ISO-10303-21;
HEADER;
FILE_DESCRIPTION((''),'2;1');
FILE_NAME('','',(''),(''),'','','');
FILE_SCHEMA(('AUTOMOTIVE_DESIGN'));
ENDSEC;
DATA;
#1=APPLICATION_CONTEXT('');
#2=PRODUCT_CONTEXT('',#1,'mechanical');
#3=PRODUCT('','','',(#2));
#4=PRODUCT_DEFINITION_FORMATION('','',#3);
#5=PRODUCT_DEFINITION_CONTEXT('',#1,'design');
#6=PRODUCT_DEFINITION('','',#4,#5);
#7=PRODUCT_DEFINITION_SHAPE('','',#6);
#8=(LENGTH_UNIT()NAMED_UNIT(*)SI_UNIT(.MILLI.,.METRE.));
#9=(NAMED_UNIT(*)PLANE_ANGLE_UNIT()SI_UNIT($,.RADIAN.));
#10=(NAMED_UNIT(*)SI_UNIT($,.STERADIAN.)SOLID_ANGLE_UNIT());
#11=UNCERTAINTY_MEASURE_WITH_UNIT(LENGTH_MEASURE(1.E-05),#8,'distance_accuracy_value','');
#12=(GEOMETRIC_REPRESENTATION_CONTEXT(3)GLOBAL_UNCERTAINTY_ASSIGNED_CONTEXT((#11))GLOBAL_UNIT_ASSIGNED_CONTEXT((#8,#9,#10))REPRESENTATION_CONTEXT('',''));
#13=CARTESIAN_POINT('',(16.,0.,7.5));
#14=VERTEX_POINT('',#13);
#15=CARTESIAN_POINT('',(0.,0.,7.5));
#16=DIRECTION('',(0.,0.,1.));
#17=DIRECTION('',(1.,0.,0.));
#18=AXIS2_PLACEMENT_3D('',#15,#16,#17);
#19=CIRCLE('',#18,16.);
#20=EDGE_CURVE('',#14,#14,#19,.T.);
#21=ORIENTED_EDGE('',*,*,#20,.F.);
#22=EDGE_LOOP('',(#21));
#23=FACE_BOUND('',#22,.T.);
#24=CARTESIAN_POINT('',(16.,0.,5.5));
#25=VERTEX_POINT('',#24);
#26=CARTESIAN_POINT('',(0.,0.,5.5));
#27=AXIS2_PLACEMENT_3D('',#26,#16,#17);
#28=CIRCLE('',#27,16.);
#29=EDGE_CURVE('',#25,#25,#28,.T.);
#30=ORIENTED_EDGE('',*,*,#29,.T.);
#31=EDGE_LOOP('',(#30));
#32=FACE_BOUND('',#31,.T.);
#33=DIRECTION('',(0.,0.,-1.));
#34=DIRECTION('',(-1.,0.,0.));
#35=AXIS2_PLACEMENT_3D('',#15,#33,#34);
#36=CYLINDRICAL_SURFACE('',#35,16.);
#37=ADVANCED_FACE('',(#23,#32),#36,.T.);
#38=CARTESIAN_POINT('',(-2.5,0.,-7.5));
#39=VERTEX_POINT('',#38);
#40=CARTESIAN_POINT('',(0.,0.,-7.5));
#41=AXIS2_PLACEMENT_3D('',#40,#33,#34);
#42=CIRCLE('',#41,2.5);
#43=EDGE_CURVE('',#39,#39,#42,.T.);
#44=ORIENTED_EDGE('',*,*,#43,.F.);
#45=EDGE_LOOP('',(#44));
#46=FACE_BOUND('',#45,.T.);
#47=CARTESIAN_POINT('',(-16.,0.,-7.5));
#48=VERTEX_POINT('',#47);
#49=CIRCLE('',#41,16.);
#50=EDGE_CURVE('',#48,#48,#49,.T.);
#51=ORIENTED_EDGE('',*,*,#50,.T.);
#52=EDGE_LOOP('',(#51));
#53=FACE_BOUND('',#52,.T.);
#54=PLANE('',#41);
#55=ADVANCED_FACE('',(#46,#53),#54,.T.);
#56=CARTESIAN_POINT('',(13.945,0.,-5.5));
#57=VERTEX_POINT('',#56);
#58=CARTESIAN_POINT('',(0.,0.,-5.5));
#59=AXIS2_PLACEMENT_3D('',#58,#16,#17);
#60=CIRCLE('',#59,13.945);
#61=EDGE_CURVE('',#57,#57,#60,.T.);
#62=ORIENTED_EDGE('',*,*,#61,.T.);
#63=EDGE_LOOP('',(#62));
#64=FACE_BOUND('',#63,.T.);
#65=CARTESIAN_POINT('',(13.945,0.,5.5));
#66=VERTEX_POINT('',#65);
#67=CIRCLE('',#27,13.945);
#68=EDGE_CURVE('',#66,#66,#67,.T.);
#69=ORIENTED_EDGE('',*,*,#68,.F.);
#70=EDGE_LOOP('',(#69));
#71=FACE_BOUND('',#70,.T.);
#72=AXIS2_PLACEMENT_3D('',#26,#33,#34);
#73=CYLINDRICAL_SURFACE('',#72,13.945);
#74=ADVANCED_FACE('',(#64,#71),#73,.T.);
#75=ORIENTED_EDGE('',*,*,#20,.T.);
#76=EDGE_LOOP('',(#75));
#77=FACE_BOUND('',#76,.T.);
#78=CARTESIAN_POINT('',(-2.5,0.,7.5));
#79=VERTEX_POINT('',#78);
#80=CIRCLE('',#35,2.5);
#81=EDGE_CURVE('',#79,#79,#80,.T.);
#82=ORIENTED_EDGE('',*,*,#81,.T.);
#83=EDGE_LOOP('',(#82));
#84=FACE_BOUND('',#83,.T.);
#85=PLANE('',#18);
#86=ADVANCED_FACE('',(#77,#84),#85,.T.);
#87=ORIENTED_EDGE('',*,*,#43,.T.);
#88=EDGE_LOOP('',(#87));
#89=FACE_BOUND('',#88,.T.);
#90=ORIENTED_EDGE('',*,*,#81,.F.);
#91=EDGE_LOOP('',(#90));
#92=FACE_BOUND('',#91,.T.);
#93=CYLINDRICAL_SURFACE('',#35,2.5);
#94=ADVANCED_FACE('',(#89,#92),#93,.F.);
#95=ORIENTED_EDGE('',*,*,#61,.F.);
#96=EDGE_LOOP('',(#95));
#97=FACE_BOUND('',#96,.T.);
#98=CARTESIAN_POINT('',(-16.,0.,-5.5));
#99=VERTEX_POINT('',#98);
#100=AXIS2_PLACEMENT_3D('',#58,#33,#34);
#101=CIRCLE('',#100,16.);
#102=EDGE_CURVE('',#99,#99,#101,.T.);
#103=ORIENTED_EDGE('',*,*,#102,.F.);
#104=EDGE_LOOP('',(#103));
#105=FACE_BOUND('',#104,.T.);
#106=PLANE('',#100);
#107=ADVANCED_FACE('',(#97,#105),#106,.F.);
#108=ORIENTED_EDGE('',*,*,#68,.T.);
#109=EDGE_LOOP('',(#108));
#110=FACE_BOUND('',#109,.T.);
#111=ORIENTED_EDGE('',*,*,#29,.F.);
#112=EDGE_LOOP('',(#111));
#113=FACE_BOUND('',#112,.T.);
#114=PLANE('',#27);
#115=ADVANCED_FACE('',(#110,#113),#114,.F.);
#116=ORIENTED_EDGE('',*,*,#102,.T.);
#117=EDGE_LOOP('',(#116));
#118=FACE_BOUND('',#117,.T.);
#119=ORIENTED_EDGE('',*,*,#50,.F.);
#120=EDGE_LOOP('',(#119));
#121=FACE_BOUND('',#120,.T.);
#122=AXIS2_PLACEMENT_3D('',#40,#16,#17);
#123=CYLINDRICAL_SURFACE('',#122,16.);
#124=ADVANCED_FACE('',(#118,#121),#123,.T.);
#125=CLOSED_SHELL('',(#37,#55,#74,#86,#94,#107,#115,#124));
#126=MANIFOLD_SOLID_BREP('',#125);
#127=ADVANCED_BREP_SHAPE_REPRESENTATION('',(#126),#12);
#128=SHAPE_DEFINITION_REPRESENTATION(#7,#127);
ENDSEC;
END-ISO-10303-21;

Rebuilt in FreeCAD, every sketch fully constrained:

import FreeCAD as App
import Part
import Sketcher
Q = App.Units.Quantity

doc = App.newDocument("Part")
body = doc.addObject("PartDesign::Body", "Body")

# Sketch on XY plane
sketch1 = body.newObject("Sketcher::SketchObject", "Sketch")
sketch1.AttachmentSupport = (doc.getObject("XY_Plane"), [""])
sketch1.MapMode = "FlatFace"
sketch1.addGeometry(Part.Circle(App.Vector(0, 0, 0), App.Vector(0, 0, 1), 14), False)
sketch1.addConstraint([
    Sketcher.Constraint("Coincident", 0, 3, -1, 1),
    Sketcher.Constraint("Diameter", 0, Q("27.89 mm")),
])
pad1 = body.newObject("PartDesign::Pad", "Pad")
pad1.Profile = sketch1
pad1.Length = 11
pad1.Midplane = True

# Sketch on XY plane
sketch2 = body.newObject("Sketcher::SketchObject", "Sketch001")
sketch2.AttachmentSupport = (doc.getObject("XY_Plane"), [""])
sketch2.MapMode = "FlatFace"
sketch2.AttachmentOffset = App.Placement(App.Vector(0, 0, 5.5), App.Rotation())
sketch2.addGeometry(Part.Circle(App.Vector(0, 0, 0), App.Vector(0, 0, 1), 16), False)
sketch2.addConstraint([
    Sketcher.Constraint("Coincident", 0, 3, -1, 1),
    Sketcher.Constraint("Diameter", 0, Q("32 mm")),
])
pad2 = body.newObject("PartDesign::Pad", "Pad001")
pad2.Profile = sketch2
pad2.Length = 2

# Sketch on XY plane
sketch3 = body.newObject("Sketcher::SketchObject", "Sketch002")
sketch3.AttachmentSupport = (doc.getObject("XY_Plane"), [""])
sketch3.MapMode = "FlatFace"
sketch3.AttachmentOffset = App.Placement(App.Vector(0, 0, -7.5), App.Rotation())
sketch3.addGeometry(Part.Circle(App.Vector(0, 0, 0), App.Vector(0, 0, 1), 16), False)
sketch3.addConstraint([
    Sketcher.Constraint("Coincident", 0, 3, -1, 1),
    Sketcher.Constraint("Diameter", 0, Q("32 mm")),
])
pad3 = body.newObject("PartDesign::Pad", "Pad002")
pad3.Profile = sketch3
pad3.Length = 2

# Sketch on XY plane
sketch4 = body.newObject("Sketcher::SketchObject", "Sketch003")
sketch4.AttachmentSupport = (doc.getObject("XY_Plane"), [""])
sketch4.MapMode = "FlatFace"
sketch4.AttachmentOffset = App.Placement(App.Vector(0, 0, -7.5), App.Rotation())
sketch4.addGeometry(Part.Circle(App.Vector(0, 0, 0), App.Vector(0, 0, 1), 2.5), False)
sketch4.addConstraint([
    Sketcher.Constraint("Coincident", 0, 3, -1, 1),
    Sketcher.Constraint("Diameter", 0, Q("5 mm")),
])
pocket1 = body.newObject("PartDesign::Pocket", "Pocket")
pocket1.Profile = sketch4
pocket1.Type = "ThroughAll"
pocket1.Midplane = True

doc.recompute()
